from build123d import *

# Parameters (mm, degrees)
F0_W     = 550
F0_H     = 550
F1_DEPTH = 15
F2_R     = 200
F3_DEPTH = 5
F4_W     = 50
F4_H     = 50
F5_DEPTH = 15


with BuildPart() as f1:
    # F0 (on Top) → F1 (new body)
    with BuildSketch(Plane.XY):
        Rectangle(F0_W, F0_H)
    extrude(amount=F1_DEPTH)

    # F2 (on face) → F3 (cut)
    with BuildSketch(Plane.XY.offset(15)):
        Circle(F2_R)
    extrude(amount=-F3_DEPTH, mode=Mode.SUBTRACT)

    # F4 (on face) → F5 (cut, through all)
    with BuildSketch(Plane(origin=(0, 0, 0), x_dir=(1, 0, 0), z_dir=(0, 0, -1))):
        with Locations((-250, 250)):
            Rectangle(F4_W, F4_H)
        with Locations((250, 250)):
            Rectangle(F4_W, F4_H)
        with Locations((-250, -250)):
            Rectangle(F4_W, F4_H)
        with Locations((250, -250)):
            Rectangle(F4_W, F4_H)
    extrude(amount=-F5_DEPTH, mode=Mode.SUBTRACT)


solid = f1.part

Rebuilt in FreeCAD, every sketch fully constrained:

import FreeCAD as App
import Part
import Sketcher

doc = App.newDocument("Part")
params = doc.addObject("Spreadsheet::Sheet", "Params")
for row, (alias, value) in enumerate([
    ("sketch1_width", "550 mm"),
    ("pad1_length", "15 mm"),
    ("sketch2_diameter", "400 mm"),
    ("pocket1_length", "5 mm"),
    ("sketch3_width", "50 mm"),
], start=1):
    params.set(f"A{row}", alias)
    params.set(f"B{row}", "=" + value)
    params.setAlias(f"B{row}", alias)

body = doc.addObject("PartDesign::Body", "Body")

sketch1 = doc.addObject("Sketcher::SketchObject", "Sketch")
body.addObject(sketch1)
sketch1.AttachmentSupport = (doc.XY_Plane, [""])
sketch1.MapMode = "FlatFace"
sketch1.addGeometry(Part.LineSegment(App.Vector(-275, 275, 0), App.Vector(-275, -275, 0)), False)
sketch1.addGeometry(Part.LineSegment(App.Vector(-275, -275, 0), App.Vector(275, -275, 0)), False)
sketch1.addGeometry(Part.LineSegment(App.Vector(275, -275, 0), App.Vector(275, 275, 0)), False)
sketch1.addGeometry(Part.LineSegment(App.Vector(275, 275, 0), App.Vector(-275, 275, 0)), False)
sketch1.addConstraint(Sketcher.Constraint("Coincident", 0, 2, 1, 1))
sketch1.addConstraint(Sketcher.Constraint("Coincident", 1, 2, 2, 1))
sketch1.addConstraint(Sketcher.Constraint("Coincident", 2, 2, 3, 1))
sketch1.addConstraint(Sketcher.Constraint("Coincident", 3, 2, 0, 1))
sketch1.addConstraint(Sketcher.Constraint("Vertical", 0))
sketch1.addConstraint(Sketcher.Constraint("Horizontal", 1))
sketch1.addConstraint(Sketcher.Constraint("Vertical", 2))
sketch1.addConstraint(Sketcher.Constraint("Horizontal", 3))
sketch1.addConstraint(Sketcher.Constraint("Symmetric", 0, 2, 2, 2, -1, 1))
sketch1.addConstraint(Sketcher.Constraint("Equal", 3, 0))
sketch1.addConstraint(Sketcher.Constraint("DistanceX", 1, 1, 1, 2, 550.0))
sketch1.setExpression("Constraints[10]", "Params.sketch1_width")
pad1 = doc.addObject("PartDesign::Pad", "Pad")
body.addObject(pad1)
pad1.Profile = sketch1
pad1.setExpression("Length", "Params.pad1_length")

sketch2 = doc.addObject("Sketcher::SketchObject", "Sketch001")
body.addObject(sketch2)
sketch2.AttachmentSupport = (doc.XY_Plane, [""])
sketch2.MapMode = "FlatFace"
sketch2.AttachmentOffset = App.Placement(App.Vector(0, 0, 15), App.Rotation())
sketch2.addGeometry(Part.Circle(App.Vector(0, 0, 0), App.Vector(0, 0, 1), 200), False)
sketch2.addConstraint(Sketcher.Constraint("Coincident", 0, 3, -1, 1))
sketch2.addConstraint(Sketcher.Constraint("Diameter", 0, 400.0))
sketch2.setExpression("Constraints[1]", "Params.sketch2_diameter")
pocket1 = doc.addObject("PartDesign::Pocket", "Pocket")
body.addObject(pocket1)
pocket1.Profile = sketch2
pocket1.setExpression("Length", "Params.pocket1_length")

sketch3 = doc.addObject("Sketcher::SketchObject", "Sketch002")
body.addObject(sketch3)
sketch3.AttachmentSupport = (doc.XY_Plane, [""])
sketch3.MapMode = "FlatFace"
sketch3.addGeometry(Part.LineSegment(App.Vector(-275, -275, 0), App.Vector(-275, -225, 0)), False)
sketch3.addGeometry(Part.LineSegment(App.Vector(-275, -225, 0), App.Vector(-225, -225, 0)), False)
sketch3.addGeometry(Part.LineSegment(App.Vector(-225, -225, 0), App.Vector(-225, -275, 0)), False)
sketch3.addGeometry(Part.LineSegment(App.Vector(-225, -275, 0), App.Vector(-275, -275, 0)), False)
sketch3.addGeometry(Part.LineSegment(App.Vector(225, -275, 0), App.Vector(225, -225, 0)), False)
sketch3.addGeometry(Part.LineSegment(App.Vector(225, -225, 0), App.Vector(275, -225, 0)), False)
sketch3.addGeometry(Part.LineSegment(App.Vector(275, -225, 0), App.Vector(275, -275, 0)), False)
sketch3.addGeometry(Part.LineSegment(App.Vector(275, -275, 0), App.Vector(225, -275, 0)), False)
sketch3.addGeometry(Part.LineSegment(App.Vector(-275, 225, 0), App.Vector(-275, 275, 0)), False)
sketch3.addGeometry(Part.LineSegment(App.Vector(-275, 275, 0), App.Vector(-225, 275, 0)), False)
sketch3.addGeometry(Part.LineSegment(App.Vector(-225, 275, 0), App.Vector(-225, 225, 0)), False)
sketch3.addGeometry(Part.LineSegment(App.Vector(-225, 225, 0), App.Vector(-275, 225, 0)), False)
sketch3.addGeometry(Part.LineSegment(App.Vector(225, 225, 0), App.Vector(225, 275, 0)), False)
sketch3.addGeometry(Part.LineSegment(App.Vector(225, 275, 0), App.Vector(275, 275, 0)), False)
sketch3.addGeometry(Part.LineSegment(App.Vector(275, 275, 0), App.Vector(275, 225, 0)), False)
sketch3.addGeometry(Part.LineSegment(App.Vector(275, 225, 0), App.Vector(225, 225, 0)), False)
sketch3.addConstraint(Sketcher.Constraint("Coincident", 0, 2, 1, 1))
sketch3.addConstraint(Sketcher.Constraint("Coincident", 1, 2, 2, 1))
sketch3.addConstraint(Sketcher.Constraint("Coincident", 2, 2, 3, 1))
sketch3.addConstraint(Sketcher.Constraint("Coincident", 3, 2, 0, 1))
sketch3.addConstraint(Sketcher.Constraint("Coincident", 4, 2, 5, 1))
sketch3.addConstraint(Sketcher.Constraint("Coincident", 5, 2, 6, 1))
sketch3.addConstraint(Sketcher.Constraint("Coincident", 6, 2, 7, 1))
sketch3.addConstraint(Sketcher.Constraint("Coincident", 7, 2, 4, 1))
sketch3.addConstraint(Sketcher.Constraint("Coincident", 8, 2, 9, 1))
sketch3.addConstraint(Sketcher.Constraint("Coincident", 9, 2, 10, 1))
sketch3.addConstraint(Sketcher.Constraint("Coincident", 10, 2, 11, 1))
sketch3.addConstraint(Sketcher.Constraint("Coincident", 11, 2, 8, 1))
sketch3.addConstraint(Sketcher.Constraint("Coincident", 12, 2, 13, 1))
sketch3.addConstraint(Sketcher.Constraint("Coincident", 13, 2, 14, 1))
sketch3.addConstraint(Sketcher.Constraint("Coincident", 14, 2, 15, 1))
sketch3.addConstraint(Sketcher.Constraint("Coincident", 15, 2, 12, 1))
sketch3.addConstraint(Sketcher.Constraint("Vertical", 0))
sketch3.addConstraint(Sketcher.Constraint("Horizontal", 1))
sketch3.addConstraint(Sketcher.Constraint("Vertical", 2))
sketch3.addConstraint(Sketcher.Constraint("Horizontal", 3))
sketch3.addConstraint(Sketcher.Constraint("Vertical", 4))
sketch3.addConstraint(Sketcher.Constraint("Horizontal", 5))
sketch3.addConstraint(Sketcher.Constraint("Vertical", 6))
sketch3.addConstraint(Sketcher.Constraint("Horizontal", 7))
sketch3.addConstraint(Sketcher.Constraint("Vertical", 8))
sketch3.addConstraint(Sketcher.Constraint("Horizontal", 9))
sketch3.addConstraint(Sketcher.Constraint("Vertical", 10))
sketch3.addConstraint(Sketcher.Constraint("Horizontal", 11))
sketch3.addConstraint(Sketcher.Constraint("Vertical", 12))
sketch3.addConstraint(Sketcher.Constraint("Horizontal", 13))
sketch3.addConstraint(Sketcher.Constraint("Vertical", 14))
sketch3.addConstraint(Sketcher.Constraint("Horizontal", 15))
sketch3.addConstraint(Sketcher.Constraint("Symmetric", 6, 2, 8, 2, -1, 1))
sketch3.addConstraint(Sketcher.Constraint("Symmetric", 4, 2, 10, 2, -1, 1))
sketch3.addConstraint(Sketcher.Constraint("Symmetric", 2, 2, 12, 2, -1, 1))
sketch3.addConstraint(Sketcher.Constraint("Symmetric", 0, 2, 14, 2, -1, 1))
sketch3.addConstraint(Sketcher.Constraint("Symmetric", 1, 2, 4, 2, -2))
sketch3.addConstraint(Sketcher.Constraint("Symmetric", 3, 2, 6, 2, -2))
sketch3.addConstraint(Sketcher.Constraint("Equal", 15, 0))
sketch3.addConstraint(Sketcher.Constraint("DistanceX", 1, 1, 1, 2, 50.0))
sketch3.addConstraint(Sketcher.Constraint("DistanceX", 0, 2, -1, 1, 275.0))
sketch3.addConstraint(Sketcher.Constraint("DistanceY", 0, 2, -1, 1, 225.0))
sketch3.setExpression("Constraints[39]", "Params.sketch3_width")
pocket2 = doc.addObject("PartDesign::Pocket", "Pocket001")
body.addObject(pocket2)
pocket2.Profile = sketch3
pocket2.Type = "ThroughAll"
pocket2.Reversed = True

doc.recompute()
